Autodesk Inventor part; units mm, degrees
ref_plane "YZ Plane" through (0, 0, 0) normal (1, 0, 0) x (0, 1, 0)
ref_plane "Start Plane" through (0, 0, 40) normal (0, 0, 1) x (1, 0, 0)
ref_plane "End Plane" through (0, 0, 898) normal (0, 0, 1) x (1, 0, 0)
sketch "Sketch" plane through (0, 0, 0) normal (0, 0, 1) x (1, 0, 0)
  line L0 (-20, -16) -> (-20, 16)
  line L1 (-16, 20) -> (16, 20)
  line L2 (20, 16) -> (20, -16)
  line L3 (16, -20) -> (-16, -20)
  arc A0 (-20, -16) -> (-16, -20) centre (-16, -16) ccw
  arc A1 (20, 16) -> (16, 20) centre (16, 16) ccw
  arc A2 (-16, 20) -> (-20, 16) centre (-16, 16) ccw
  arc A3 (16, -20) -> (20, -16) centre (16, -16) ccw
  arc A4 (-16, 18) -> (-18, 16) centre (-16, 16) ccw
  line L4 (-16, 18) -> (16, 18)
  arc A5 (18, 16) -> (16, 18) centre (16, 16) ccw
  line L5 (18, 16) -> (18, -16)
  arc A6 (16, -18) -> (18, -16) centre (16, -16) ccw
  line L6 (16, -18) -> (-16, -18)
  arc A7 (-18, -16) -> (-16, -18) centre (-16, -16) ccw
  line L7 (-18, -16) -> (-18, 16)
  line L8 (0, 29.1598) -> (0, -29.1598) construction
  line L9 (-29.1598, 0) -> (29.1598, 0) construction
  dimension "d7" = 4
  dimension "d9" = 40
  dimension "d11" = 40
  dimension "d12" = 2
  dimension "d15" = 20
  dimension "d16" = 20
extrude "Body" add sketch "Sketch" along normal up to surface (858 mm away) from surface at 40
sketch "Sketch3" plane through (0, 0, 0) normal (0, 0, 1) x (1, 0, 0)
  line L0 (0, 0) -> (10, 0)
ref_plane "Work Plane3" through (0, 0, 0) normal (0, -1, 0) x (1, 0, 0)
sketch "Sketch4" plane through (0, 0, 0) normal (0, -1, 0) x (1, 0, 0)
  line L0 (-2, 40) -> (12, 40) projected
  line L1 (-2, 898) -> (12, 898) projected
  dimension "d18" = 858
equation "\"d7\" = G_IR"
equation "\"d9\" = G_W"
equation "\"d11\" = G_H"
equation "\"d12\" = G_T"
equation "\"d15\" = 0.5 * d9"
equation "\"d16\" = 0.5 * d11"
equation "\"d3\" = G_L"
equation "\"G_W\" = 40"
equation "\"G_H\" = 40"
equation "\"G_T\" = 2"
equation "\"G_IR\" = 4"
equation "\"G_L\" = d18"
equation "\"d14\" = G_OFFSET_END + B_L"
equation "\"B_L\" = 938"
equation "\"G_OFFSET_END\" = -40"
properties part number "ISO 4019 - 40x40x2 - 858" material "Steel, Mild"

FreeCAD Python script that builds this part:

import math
import FreeCAD as App
import Part
import Sketcher

V = App.Vector

doc = App.newDocument("Part")
body = doc.addObject("PartDesign::Body", "Body")

sketch1 = body.newObject("Sketcher::SketchObject", "Sketch")
sketch1.AttachmentSupport = (doc.getObject("XY_Plane"), [""])
sketch1.MapMode = "FlatFace"
sketch1.AttachmentOffset = App.Placement(V(0, 0, 40), App.Rotation())
sketch1.addGeometry(Part.LineSegment(V(-20, 16, 0), V(-20, -16, 0)), False)
sketch1.addGeometry(Part.ArcOfCircle(Part.Circle(V(-16, -16, 0), V(0, 0, 1), 4), math.radians(180), math.radians(270)), False)
sketch1.addGeometry(Part.LineSegment(V(-16, -20, 0), V(16, -20, 0)), False)
sketch1.addGeometry(Part.ArcOfCircle(Part.Circle(V(16, -16, 0), V(0, 0, 1), 4), math.radians(-90), math.radians(0)), False)
sketch1.addGeometry(Part.LineSegment(V(20, -16, 0), V(20, 16, 0)), False)
sketch1.addGeometry(Part.ArcOfCircle(Part.Circle(V(16, 16, 0), V(0, 0, 1), 4), math.radians(0), math.radians(90)), False)
sketch1.addGeometry(Part.LineSegment(V(16, 20, 0), V(-16, 20, 0)), False)
sketch1.addGeometry(Part.ArcOfCircle(Part.Circle(V(-16, 16, 0), V(0, 0, 1), 4), math.radians(90), math.radians(180)), False)
sketch1.addGeometry(Part.ArcOfCircle(Part.Circle(V(-16, 16, 0), V(0, 0, 1), 2), math.radians(90), math.radians(180)), False)
sketch1.addGeometry(Part.LineSegment(V(-16, 18, 0), V(16, 18, 0)), False)
sketch1.addGeometry(Part.ArcOfCircle(Part.Circle(V(16, 16, 0), V(0, 0, 1), 2), math.radians(0), math.radians(90)), False)
sketch1.addGeometry(Part.LineSegment(V(18, 16, 0), V(18, -16, 0)), False)
sketch1.addGeometry(Part.ArcOfCircle(Part.Circle(V(16, -16, 0), V(0, 0, 1), 2), math.radians(-90), math.radians(0)), False)
sketch1.addGeometry(Part.LineSegment(V(16, -18, 0), V(-16, -18, 0)), False)
sketch1.addGeometry(Part.ArcOfCircle(Part.Circle(V(-16, -16, 0), V(0, 0, 1), 2), math.radians(180), math.radians(270)), False)
sketch1.addGeometry(Part.LineSegment(V(-18, -16, 0), V(-18, 16, 0)), False)
sketch1.addConstraint(Sketcher.Constraint("Tangent", 0, 2, 1, 1))
sketch1.addConstraint(Sketcher.Constraint("Tangent", 1, 2, 2, 1))
sketch1.addConstraint(Sketcher.Constraint("Tangent", 2, 2, 3, 1))
sketch1.addConstraint(Sketcher.Constraint("Tangent", 3, 2, 4, 1))
sketch1.addConstraint(Sketcher.Constraint("Tangent", 4, 2, 5, 1))
sketch1.addConstraint(Sketcher.Constraint("Tangent", 5, 2, 6, 1))
sketch1.addConstraint(Sketcher.Constraint("Tangent", 6, 2, 7, 1))
sketch1.addConstraint(Sketcher.Constraint("Tangent", 7, 2, 0, 1))
sketch1.addConstraint(Sketcher.Constraint("Tangent", 8, 1, 9, 1))
sketch1.addConstraint(Sketcher.Constraint("Tangent", 9, 2, 10, 2))
sketch1.addConstraint(Sketcher.Constraint("Tangent", 10, 1, 11, 1))
sketch1.addConstraint(Sketcher.Constraint("Tangent", 11, 2, 12, 2))
sketch1.addConstraint(Sketcher.Constraint("Tangent", 12, 1, 13, 1))
sketch1.addConstraint(Sketcher.Constraint("Tangent", 13, 2, 14, 2))
sketch1.addConstraint(Sketcher.Constraint("Tangent", 14, 1, 15, 1))
sketch1.addConstraint(Sketcher.Constraint("Tangent", 15, 2, 8, 2))
sketch1.addConstraint(Sketcher.Constraint("Vertical", 0))
sketch1.addConstraint(Sketcher.Constraint("Horizontal", 2))
sketch1.addConstraint(Sketcher.Constraint("Vertical", 4))
sketch1.addConstraint(Sketcher.Constraint("Horizontal", 6))
sketch1.addConstraint(Sketcher.Constraint("Horizontal", 9))
sketch1.addConstraint(Sketcher.Constraint("Vertical", 11))
sketch1.addConstraint(Sketcher.Constraint("Horizontal", 13))
sketch1.addConstraint(Sketcher.Constraint("Vertical", 15))
sketch1.addConstraint(Sketcher.Constraint("Coincident", 8, 3, 7, 3))
sketch1.addConstraint(Sketcher.Constraint("Coincident", 10, 3, 5, 3))
sketch1.addConstraint(Sketcher.Constraint("Coincident", 12, 3, 3, 3))
sketch1.addConstraint(Sketcher.Constraint("Equal", 1, 3))
sketch1.addConstraint(Sketcher.Constraint("Equal", 3, 5))
sketch1.addConstraint(Sketcher.Constraint("Equal", 5, 7))
sketch1.addConstraint(Sketcher.Constraint("Equal", 12, 14))
sketch1.addConstraint(Sketcher.Constraint("Symmetric", 1, 3, 5, 3, -1, 1))
sketch1.addConstraint(Sketcher.Constraint("Equal", 13, 0))
sketch1.addConstraint(Sketcher.Constraint("Radius", 1, 4.0))
sketch1.addConstraint(Sketcher.Constraint("Radius", 8, 2.0))
sketch1.addConstraint(Sketcher.Constraint("DistanceX", 0, 2, -1, 1, 20.0))
pad1 = body.newObject("PartDesign::Pad", "Pad")
pad1.Profile = sketch1
pad1.Length = 858

doc.recompute()
